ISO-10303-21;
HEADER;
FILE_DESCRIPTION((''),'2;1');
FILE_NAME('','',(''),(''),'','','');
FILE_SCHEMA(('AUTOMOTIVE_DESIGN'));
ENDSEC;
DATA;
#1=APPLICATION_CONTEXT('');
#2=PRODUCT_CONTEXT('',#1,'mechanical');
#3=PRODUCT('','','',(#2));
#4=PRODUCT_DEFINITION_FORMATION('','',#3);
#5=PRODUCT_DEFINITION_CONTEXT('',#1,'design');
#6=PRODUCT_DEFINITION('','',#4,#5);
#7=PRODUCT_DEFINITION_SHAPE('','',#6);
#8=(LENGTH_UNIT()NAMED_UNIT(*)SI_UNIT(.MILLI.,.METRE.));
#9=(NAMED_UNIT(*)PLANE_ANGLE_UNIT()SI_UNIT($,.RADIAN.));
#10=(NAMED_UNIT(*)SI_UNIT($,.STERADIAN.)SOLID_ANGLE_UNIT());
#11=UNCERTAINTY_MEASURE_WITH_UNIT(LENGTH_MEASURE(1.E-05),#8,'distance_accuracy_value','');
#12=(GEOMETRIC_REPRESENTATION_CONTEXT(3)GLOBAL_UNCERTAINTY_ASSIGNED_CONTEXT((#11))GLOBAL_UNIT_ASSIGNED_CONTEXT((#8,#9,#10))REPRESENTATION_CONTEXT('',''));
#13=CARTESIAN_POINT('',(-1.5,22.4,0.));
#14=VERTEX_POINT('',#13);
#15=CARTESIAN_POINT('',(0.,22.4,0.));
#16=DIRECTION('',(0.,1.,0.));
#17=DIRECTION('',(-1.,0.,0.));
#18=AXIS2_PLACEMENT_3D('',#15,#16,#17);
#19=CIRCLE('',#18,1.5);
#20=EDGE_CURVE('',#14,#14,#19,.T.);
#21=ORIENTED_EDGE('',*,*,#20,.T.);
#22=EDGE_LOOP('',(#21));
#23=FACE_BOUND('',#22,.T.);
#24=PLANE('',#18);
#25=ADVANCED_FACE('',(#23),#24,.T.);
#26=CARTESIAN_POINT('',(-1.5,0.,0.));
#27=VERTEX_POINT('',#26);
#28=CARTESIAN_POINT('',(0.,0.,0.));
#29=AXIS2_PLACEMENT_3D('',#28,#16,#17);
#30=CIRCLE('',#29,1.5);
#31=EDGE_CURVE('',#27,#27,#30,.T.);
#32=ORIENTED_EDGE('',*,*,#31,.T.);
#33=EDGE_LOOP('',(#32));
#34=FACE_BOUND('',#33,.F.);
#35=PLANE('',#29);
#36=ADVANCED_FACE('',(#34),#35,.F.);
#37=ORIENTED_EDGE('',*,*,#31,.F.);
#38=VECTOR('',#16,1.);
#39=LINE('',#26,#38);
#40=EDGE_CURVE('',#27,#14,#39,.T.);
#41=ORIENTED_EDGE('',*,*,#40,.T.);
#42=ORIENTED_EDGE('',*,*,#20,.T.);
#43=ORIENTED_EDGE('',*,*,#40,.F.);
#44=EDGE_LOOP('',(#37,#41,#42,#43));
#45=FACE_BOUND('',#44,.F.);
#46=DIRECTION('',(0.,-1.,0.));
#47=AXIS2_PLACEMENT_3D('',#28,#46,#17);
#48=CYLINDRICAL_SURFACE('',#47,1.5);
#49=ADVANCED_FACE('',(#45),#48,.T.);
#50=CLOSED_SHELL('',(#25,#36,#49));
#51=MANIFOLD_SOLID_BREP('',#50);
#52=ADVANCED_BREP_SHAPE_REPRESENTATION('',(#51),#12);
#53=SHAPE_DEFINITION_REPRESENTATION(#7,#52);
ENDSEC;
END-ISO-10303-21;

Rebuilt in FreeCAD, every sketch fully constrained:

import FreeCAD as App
import Part
import Sketcher
from FreeCAD import Vector
Q = App.Units.Quantity

doc = App.newDocument("Part")
body = doc.addObject("PartDesign::Body", "Body")

# Sketch on XZ plane
sketch1 = doc.addObject("Sketcher::SketchObject", "Sketch")
body.addObject(sketch1)
sketch1.AttachmentSupport = (doc.XZ_Plane, [""])
sketch1.MapMode = "FlatFace"
sketch1.addGeometry(Part.Circle(Vector(0, 0, 0), Vector(0, 0, 1), 1.5), False)
sketch1.addConstraint(Sketcher.Constraint("Coincident", 0, 3, -1, 1))
sketch1.addConstraint(Sketcher.Constraint("Diameter", 0, Q("3 mm")))
pad1 = doc.addObject("PartDesign::Pad", "Pad")
body.addObject(pad1)
pad1.Profile = sketch1
pad1.Length = 22.4
pad1.Reversed = True

doc.recompute()
